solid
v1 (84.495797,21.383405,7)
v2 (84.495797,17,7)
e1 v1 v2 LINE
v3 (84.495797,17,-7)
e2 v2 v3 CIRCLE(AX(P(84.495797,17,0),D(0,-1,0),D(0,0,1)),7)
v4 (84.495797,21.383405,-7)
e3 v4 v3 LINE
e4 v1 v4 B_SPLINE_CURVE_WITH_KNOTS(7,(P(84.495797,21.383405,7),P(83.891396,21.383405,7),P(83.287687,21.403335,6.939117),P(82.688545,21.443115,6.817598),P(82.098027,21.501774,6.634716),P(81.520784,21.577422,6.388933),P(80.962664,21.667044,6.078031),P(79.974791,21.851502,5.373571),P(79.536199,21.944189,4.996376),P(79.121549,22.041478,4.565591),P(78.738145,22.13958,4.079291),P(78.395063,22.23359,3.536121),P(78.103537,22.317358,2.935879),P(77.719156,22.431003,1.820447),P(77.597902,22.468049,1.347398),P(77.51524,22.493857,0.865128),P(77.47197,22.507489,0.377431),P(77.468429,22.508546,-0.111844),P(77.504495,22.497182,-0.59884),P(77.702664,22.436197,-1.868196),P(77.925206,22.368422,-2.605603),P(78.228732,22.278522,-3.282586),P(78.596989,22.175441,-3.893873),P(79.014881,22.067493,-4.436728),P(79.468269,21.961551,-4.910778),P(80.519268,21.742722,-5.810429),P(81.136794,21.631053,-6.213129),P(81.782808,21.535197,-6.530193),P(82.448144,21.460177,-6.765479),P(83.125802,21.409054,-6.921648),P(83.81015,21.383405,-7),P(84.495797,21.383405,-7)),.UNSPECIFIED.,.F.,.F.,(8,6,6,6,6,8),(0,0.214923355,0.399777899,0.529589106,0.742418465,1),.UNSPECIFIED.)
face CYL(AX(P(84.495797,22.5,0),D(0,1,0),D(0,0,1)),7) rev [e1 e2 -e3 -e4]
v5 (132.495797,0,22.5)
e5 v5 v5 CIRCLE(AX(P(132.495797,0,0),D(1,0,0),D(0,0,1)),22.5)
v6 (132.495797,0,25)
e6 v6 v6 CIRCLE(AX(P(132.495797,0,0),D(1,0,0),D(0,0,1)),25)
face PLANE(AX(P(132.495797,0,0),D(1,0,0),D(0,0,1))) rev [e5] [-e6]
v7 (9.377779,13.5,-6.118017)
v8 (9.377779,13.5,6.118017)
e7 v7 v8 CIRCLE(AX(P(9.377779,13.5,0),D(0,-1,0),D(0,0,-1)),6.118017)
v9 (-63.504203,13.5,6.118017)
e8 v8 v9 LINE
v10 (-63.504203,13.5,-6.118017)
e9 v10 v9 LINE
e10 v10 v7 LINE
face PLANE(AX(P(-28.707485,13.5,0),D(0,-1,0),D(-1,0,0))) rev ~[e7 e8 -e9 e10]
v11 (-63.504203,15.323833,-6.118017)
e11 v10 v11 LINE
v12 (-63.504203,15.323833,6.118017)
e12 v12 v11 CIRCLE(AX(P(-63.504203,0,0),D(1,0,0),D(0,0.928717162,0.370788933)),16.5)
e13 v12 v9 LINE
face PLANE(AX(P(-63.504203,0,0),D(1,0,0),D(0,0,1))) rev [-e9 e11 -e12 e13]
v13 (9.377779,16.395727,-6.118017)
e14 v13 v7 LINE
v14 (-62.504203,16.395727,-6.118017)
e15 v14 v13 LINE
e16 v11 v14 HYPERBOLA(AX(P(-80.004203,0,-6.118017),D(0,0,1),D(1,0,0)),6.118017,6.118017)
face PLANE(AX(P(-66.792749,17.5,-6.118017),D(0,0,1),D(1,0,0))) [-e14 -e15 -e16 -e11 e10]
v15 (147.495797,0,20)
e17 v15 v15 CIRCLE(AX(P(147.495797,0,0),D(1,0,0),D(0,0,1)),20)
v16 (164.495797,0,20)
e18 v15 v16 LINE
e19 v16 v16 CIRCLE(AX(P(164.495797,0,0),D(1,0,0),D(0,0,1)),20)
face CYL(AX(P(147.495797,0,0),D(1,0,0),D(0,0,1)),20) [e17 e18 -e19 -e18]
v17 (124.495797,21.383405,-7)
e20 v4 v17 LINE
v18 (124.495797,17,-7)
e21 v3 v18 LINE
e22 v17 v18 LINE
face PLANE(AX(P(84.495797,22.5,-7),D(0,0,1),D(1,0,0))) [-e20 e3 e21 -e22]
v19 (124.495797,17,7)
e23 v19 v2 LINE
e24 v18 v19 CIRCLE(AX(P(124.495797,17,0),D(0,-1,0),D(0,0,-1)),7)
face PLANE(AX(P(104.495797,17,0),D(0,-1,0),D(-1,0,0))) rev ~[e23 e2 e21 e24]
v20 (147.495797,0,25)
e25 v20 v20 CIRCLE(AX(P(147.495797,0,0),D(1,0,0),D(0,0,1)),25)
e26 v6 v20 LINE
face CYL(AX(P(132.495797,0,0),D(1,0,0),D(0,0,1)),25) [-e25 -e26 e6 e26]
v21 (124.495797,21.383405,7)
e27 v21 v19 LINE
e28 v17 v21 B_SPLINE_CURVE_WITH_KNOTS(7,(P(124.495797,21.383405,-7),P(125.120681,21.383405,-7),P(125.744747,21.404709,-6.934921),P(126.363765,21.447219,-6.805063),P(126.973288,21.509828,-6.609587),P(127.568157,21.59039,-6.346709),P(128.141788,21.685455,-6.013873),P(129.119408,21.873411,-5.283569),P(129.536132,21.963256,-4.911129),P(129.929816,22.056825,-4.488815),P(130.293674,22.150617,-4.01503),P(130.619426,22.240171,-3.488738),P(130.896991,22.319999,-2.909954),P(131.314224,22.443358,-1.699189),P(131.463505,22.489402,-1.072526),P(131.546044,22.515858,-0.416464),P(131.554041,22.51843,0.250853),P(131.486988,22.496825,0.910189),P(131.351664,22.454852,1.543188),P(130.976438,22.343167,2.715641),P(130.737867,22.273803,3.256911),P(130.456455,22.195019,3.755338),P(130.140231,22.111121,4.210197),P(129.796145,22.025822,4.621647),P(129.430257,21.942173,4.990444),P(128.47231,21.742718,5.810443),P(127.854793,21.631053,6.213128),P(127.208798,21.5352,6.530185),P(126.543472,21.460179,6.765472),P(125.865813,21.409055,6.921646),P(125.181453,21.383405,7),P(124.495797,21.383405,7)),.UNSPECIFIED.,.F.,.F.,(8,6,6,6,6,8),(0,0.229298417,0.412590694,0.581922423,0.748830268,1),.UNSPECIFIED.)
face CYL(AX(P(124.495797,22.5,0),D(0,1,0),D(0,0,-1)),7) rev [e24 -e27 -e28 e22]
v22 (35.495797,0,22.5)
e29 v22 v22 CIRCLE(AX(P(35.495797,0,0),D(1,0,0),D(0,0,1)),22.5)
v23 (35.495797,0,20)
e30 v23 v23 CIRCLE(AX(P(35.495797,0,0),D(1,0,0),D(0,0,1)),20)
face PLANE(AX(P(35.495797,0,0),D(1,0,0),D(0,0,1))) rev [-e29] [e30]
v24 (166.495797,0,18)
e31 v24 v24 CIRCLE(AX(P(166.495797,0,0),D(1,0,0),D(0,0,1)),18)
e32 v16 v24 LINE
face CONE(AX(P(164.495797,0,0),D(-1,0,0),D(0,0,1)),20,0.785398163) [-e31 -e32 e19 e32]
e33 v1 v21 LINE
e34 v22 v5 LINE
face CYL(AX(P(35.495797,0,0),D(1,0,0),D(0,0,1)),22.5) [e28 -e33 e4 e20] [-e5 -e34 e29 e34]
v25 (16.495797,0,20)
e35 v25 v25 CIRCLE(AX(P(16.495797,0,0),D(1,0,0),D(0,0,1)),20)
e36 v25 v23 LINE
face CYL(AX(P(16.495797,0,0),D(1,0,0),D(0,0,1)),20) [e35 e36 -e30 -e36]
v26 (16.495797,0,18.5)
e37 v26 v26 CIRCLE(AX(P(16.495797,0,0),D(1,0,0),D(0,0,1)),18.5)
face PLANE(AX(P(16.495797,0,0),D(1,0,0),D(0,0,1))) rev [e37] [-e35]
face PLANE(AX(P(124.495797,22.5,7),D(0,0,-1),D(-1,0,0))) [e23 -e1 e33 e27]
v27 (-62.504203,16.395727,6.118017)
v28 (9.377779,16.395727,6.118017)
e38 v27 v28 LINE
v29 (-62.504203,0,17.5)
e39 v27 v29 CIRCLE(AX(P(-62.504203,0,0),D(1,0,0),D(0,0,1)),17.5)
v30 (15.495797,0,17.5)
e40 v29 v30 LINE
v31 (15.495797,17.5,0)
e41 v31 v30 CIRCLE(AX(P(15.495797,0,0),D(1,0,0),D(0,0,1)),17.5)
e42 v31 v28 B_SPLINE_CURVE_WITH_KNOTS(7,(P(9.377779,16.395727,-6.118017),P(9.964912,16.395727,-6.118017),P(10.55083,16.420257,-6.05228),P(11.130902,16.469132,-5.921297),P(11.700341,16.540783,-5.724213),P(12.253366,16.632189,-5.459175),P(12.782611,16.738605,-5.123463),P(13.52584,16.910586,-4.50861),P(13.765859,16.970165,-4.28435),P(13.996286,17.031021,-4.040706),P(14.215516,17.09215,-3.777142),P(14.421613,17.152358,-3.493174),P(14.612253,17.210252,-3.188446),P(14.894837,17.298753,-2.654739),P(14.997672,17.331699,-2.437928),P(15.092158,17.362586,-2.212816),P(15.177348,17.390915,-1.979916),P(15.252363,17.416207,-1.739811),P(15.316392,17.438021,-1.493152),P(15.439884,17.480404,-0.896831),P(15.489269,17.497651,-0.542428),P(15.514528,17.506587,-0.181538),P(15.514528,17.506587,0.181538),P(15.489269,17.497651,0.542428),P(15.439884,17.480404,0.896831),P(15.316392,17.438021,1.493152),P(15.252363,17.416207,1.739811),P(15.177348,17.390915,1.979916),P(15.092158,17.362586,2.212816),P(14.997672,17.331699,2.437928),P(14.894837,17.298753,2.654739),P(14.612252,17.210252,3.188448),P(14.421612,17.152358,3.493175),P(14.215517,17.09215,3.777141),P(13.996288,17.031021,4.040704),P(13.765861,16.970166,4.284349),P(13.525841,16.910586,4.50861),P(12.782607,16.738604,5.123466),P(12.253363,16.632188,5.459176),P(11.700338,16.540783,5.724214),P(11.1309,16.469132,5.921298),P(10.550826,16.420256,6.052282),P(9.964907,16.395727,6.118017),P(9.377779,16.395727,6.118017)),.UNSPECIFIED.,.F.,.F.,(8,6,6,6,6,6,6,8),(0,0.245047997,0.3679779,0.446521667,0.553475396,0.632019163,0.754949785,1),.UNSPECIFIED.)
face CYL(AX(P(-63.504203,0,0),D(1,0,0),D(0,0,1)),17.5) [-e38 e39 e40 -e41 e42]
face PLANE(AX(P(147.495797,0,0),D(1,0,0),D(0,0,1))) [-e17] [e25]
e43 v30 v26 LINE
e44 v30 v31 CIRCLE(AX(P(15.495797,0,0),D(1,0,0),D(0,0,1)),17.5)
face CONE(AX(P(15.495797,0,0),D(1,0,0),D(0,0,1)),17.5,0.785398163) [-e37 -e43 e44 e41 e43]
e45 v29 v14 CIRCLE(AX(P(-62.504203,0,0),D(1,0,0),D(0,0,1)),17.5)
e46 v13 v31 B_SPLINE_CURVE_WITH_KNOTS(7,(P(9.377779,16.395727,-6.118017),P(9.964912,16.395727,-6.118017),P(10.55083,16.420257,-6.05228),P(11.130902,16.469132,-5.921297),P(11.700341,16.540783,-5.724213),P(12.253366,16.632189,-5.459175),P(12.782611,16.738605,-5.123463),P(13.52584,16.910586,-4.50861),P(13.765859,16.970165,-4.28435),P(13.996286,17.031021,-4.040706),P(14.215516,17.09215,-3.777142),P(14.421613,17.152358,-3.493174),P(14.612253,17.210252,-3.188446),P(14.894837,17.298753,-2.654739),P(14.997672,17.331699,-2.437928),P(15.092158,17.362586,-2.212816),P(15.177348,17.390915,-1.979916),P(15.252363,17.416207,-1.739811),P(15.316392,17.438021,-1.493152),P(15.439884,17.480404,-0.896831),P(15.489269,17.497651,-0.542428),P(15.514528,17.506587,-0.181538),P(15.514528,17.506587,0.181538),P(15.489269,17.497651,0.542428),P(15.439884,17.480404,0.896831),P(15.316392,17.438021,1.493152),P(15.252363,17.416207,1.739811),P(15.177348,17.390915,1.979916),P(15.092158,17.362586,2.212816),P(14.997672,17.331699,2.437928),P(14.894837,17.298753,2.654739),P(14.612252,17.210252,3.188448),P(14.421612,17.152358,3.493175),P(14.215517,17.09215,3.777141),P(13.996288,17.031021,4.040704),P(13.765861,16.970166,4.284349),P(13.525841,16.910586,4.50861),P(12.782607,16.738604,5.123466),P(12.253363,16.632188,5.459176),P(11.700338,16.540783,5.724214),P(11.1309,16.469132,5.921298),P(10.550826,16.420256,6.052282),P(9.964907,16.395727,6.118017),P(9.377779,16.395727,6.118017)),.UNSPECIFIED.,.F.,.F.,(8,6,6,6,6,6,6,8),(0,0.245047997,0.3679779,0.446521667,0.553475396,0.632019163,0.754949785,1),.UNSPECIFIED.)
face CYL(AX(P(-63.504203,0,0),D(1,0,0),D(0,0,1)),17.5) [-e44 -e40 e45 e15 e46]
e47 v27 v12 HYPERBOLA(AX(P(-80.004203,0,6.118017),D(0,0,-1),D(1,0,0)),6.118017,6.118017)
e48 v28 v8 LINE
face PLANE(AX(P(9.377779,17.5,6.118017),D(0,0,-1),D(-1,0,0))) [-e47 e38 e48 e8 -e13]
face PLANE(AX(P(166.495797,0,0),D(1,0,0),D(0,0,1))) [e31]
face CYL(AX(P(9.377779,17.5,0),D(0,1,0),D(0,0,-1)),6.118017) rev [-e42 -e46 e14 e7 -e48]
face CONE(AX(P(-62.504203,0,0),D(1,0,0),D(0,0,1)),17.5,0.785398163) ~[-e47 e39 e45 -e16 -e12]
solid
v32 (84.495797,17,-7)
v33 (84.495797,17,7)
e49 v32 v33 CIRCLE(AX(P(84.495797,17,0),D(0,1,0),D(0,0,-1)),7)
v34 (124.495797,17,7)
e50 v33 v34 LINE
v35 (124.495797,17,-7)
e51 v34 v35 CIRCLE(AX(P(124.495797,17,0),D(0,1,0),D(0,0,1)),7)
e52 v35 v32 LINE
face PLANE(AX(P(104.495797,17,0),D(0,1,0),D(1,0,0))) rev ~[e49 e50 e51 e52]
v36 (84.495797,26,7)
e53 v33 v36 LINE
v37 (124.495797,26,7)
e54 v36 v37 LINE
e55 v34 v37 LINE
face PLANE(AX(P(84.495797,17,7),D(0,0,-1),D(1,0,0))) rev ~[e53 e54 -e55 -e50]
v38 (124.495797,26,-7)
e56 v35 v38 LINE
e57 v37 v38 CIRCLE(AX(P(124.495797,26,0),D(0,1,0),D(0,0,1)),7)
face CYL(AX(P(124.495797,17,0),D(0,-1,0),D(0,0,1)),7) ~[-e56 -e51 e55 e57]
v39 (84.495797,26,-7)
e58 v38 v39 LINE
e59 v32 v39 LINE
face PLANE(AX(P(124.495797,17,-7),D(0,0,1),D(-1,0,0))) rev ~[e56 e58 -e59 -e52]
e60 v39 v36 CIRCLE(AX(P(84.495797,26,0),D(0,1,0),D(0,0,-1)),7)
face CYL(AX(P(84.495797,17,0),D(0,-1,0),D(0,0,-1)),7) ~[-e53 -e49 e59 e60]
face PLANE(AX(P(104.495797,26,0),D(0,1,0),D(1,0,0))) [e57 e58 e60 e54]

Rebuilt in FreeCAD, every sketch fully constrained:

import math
import FreeCAD as App
import Part
import Sketcher

V = App.Vector
Q = App.Units.Quantity


def edges_at(feature, points):
    """Names of the edges that pass closest to the given points."""
    edges = feature.Shape.Edges
    near = lambda p: min(range(len(edges)), key=lambda i: edges[i].distToShape(Part.Vertex(*p))[0])
    return sorted({f"Edge{near(p) + 1}" for p in points})

doc = App.newDocument("Part")
body = doc.addObject("PartDesign::Body", "Body")

# Sketch on XY plane
sketch1 = doc.addObject("Sketcher::SketchObject", "Sketch")
body.addObject(sketch1)
sketch1.AttachmentSupport = (doc.XY_Plane, [""])
sketch1.MapMode = "FlatFace"
sketch1.addGeometry(Part.LineSegment(V(-63.5, 17.5, 0), V(-63.5, 0, 0)), False)
sketch1.addGeometry(Part.LineSegment(V(-63.5, 0, 0), V(166.5, 0, 0)), False)
sketch1.addGeometry(Part.LineSegment(V(166.5, 0, 0), V(166.5, 20, 0)), False)
sketch1.addGeometry(Part.LineSegment(V(166.5, 20, 0), V(147.5, 20, 0)), False)
sketch1.addGeometry(Part.LineSegment(V(147.5, 20, 0), V(147.5, 25, 0)), False)
sketch1.addGeometry(Part.LineSegment(V(147.5, 25, 0), V(132.5, 25, 0)), False)
sketch1.addGeometry(Part.LineSegment(V(132.5, 25, 0), V(132.5, 22.5, 0)), False)
sketch1.addGeometry(Part.LineSegment(V(132.5, 22.5, 0), V(35.5, 22.5, 0)), False)
sketch1.addGeometry(Part.LineSegment(V(35.5, 22.5, 0), V(35.5, 20, 0)), False)
sketch1.addGeometry(Part.LineSegment(V(35.5, 20, 0), V(16.5, 20, 0)), False)
sketch1.addGeometry(Part.LineSegment(V(16.5, 20, 0), V(16.5, 17.5, 0)), False)
sketch1.addGeometry(Part.LineSegment(V(16.5, 17.5, 0), V(-63.5, 17.5, 0)), False)
sketch1.addConstraint(Sketcher.Constraint("Coincident", 0, 2, 1, 1))
sketch1.addConstraint(Sketcher.Constraint("Coincident", 1, 2, 2, 1))
sketch1.addConstraint(Sketcher.Constraint("Coincident", 2, 2, 3, 1))
sketch1.addConstraint(Sketcher.Constraint("Coincident", 3, 2, 4, 1))
sketch1.addConstraint(Sketcher.Constraint("Coincident", 4, 2, 5, 1))
sketch1.addConstraint(Sketcher.Constraint("Coincident", 5, 2, 6, 1))
sketch1.addConstraint(Sketcher.Constraint("Coincident", 6, 2, 7, 1))
sketch1.addConstraint(Sketcher.Constraint("Coincident", 7, 2, 8, 1))
sketch1.addConstraint(Sketcher.Constraint("Coincident", 8, 2, 9, 1))
sketch1.addConstraint(Sketcher.Constraint("Coincident", 9, 2, 10, 1))
sketch1.addConstraint(Sketcher.Constraint("Coincident", 10, 2, 11, 1))
sketch1.addConstraint(Sketcher.Constraint("Coincident", 11, 2, 0, 1))
sketch1.addConstraint(Sketcher.Constraint("Vertical", 0))
sketch1.addConstraint(Sketcher.Constraint("Horizontal", 1))
sketch1.addConstraint(Sketcher.Constraint("Vertical", 2))
sketch1.addConstraint(Sketcher.Constraint("Horizontal", 3))
sketch1.addConstraint(Sketcher.Constraint("Vertical", 4))
sketch1.addConstraint(Sketcher.Constraint("Horizontal", 5))
sketch1.addConstraint(Sketcher.Constraint("Vertical", 6))
sketch1.addConstraint(Sketcher.Constraint("Horizontal", 7))
sketch1.addConstraint(Sketcher.Constraint("Vertical", 8))
sketch1.addConstraint(Sketcher.Constraint("Horizontal", 9))
sketch1.addConstraint(Sketcher.Constraint("Vertical", 10))
sketch1.addConstraint(Sketcher.Constraint("Horizontal", 11))
sketch1.addConstraint(Sketcher.Constraint("PointOnObject", 0, 2, -1))
sketch1.addConstraint(Sketcher.Constraint("Horizontal", 3, 2, 8, 2))
sketch1.addConstraint(Sketcher.Constraint("Equal", 3, 9))
sketch1.addConstraint(Sketcher.Constraint("Equal", 6, 8))
sketch1.addConstraint(Sketcher.Constraint("Equal", 8, 10))
sketch1.addConstraint(Sketcher.Constraint("DistanceX", 1, 1, 1, 2, Q("230 mm")))
sketch1.addConstraint(Sketcher.Constraint("DistanceX", 3, 2, 3, 1, Q("19 mm")))
sketch1.addConstraint(Sketcher.Constraint("DistanceX", 5, 2, 5, 1, Q("15 mm")))
sketch1.addConstraint(Sketcher.Constraint("DistanceX", 7, 2, 7, 1, Q("97 mm")))
sketch1.addConstraint(Sketcher.Constraint("DistanceY", 2, 1, 2, 2, Q("20 mm")))
sketch1.addConstraint(Sketcher.Constraint("DistanceY", 4, 1, 4, 2, Q("5 mm")))
sketch1.addConstraint(Sketcher.Constraint("DistanceX", 0, 2, -1, 1, Q("63.504203 mm")))
revolution = doc.addObject("PartDesign::Revolution", "Revolution")
body.addObject(revolution)
revolution.Profile = sketch1
revolution.ReferenceAxis = (sketch1, ["H_Axis"])
revolution.Angle = 360
doc.recompute()

chamfer = doc.addObject("PartDesign::Chamfer", "Chamfer")
body.addObject(chamfer)
chamfer.Base = (revolution, edges_at(revolution, [(16.496, 0, -17.5)]))
chamfer.Size = 1
doc.recompute()

chamfer2 = doc.addObject("PartDesign::Chamfer", "Chamfer001")
body.addObject(chamfer2)
chamfer2.Base = (chamfer, edges_at(chamfer, [(-63.504, 0, -17.5)]))
chamfer2.Size = 1
doc.recompute()

chamfer3 = doc.addObject("PartDesign::Chamfer", "Chamfer002")
body.addObject(chamfer3)
chamfer3.Base = (chamfer2, edges_at(chamfer2, [(166.496, 0, -20)]))
chamfer3.Size = 2

# Sketch on XZ plane
sketch2 = doc.addObject("Sketcher::SketchObject", "Sketch001")
body.addObject(sketch2)
sketch2.AttachmentSupport = (doc.XZ_Plane, [""])
sketch2.MapMode = "FlatFace"
sketch2.AttachmentOffset = App.Placement(V(0, 0, -17.5), App.Rotation())
sketch2.addGeometry(Part.LineSegment(V(9, -6, 0), V(-67, -6, 0)), False)
sketch2.addGeometry(Part.ArcOfCircle(Part.Circle(V(-67, 0, 0), V(0, 0, 1), 6), math.radians(90), math.radians(270)), False)
sketch2.addGeometry(Part.LineSegment(V(-67, 6, 0), V(9, 6, 0)), False)
sketch2.addGeometry(Part.ArcOfCircle(Part.Circle(V(9, 0, 0), V(0, 0, 1), 6), math.radians(-90), math.radians(90)), False)
sketch2.addConstraint(Sketcher.Constraint("Tangent", 0, 2, 1, 2))
sketch2.addConstraint(Sketcher.Constraint("Tangent", 1, 1, 2, 1))
sketch2.addConstraint(Sketcher.Constraint("Tangent", 2, 2, 3, 2))
sketch2.addConstraint(Sketcher.Constraint("Tangent", 3, 1, 0, 1))
sketch2.addConstraint(Sketcher.Constraint("Horizontal", 0))
sketch2.addConstraint(Sketcher.Constraint("Horizontal", 2))
sketch2.addConstraint(Sketcher.Constraint("PointOnObject", 1, 3, -1))
sketch2.addConstraint(Sketcher.Constraint("Radius", 1, Q("6.118017 mm")))
sketch2.addConstraint(Sketcher.Constraint("DistanceX", 0, 2, 0, 1, Q("76.170528 mm")))
sketch2.addConstraint(Sketcher.Constraint("DistanceX", 1, 3, -1, 1, Q("66.792749 mm")))
pocket1 = doc.addObject("PartDesign::Pocket", "Pocket")
body.addObject(pocket1)
pocket1.Profile = sketch2
pocket1.Length = 4
pocket1.Reversed = True

# Sketch on XZ plane
sketch3 = doc.addObject("Sketcher::SketchObject", "Sketch002")
body.addObject(sketch3)
sketch3.AttachmentSupport = (doc.XZ_Plane, [""])
sketch3.MapMode = "FlatFace"
sketch3.AttachmentOffset = App.Placement(V(0, 0, -22.5), App.Rotation())
sketch3.addGeometry(Part.LineSegment(V(124, -7, 0), V(84, -7, 0)), False)
sketch3.addGeometry(Part.ArcOfCircle(Part.Circle(V(84, 0, 0), V(0, 0, 1), 7), math.radians(90), math.radians(270)), False)
sketch3.addGeometry(Part.LineSegment(V(84, 7, 0), V(124, 7, 0)), False)
sketch3.addGeometry(Part.ArcOfCircle(Part.Circle(V(124, 0, 0), V(0, 0, 1), 7), math.radians(-90), math.radians(90)), False)
sketch3.addConstraint(Sketcher.Constraint("Tangent", 0, 2, 1, 2))
sketch3.addConstraint(Sketcher.Constraint("Tangent", 1, 1, 2, 1))
sketch3.addConstraint(Sketcher.Constraint("Tangent", 2, 2, 3, 2))
sketch3.addConstraint(Sketcher.Constraint("Tangent", 3, 1, 0, 1))
sketch3.addConstraint(Sketcher.Constraint("Horizontal", 0))
sketch3.addConstraint(Sketcher.Constraint("Horizontal", 2))
sketch3.addConstraint(Sketcher.Constraint("PointOnObject", 1, 3, -1))
sketch3.addConstraint(Sketcher.Constraint("Radius", 1, Q("7 mm")))
sketch3.addConstraint(Sketcher.Constraint("DistanceX", 0, 2, 0, 1, Q("40 mm")))
sketch3.addConstraint(Sketcher.Constraint("DistanceX", -1, 1, 1, 3, Q("84.495797 mm")))
pocket2 = doc.addObject("PartDesign::Pocket", "Pocket001")
body.addObject(pocket2)
pocket2.Profile = sketch3
pocket2.Length = 5.5
pocket2.Reversed = True
body2 = doc.addObject("PartDesign::Body", "Body001")

# Sketch on XZ plane
sketch4 = doc.addObject("Sketcher::SketchObject", "Sketch003")
body2.addObject(sketch4)
sketch4.AttachmentSupport = (doc.getObject("XZ_Plane001"), [""])
sketch4.MapMode = "FlatFace"
sketch4.AttachmentOffset = App.Placement(V(0, 0, -17), App.Rotation())
sketch4.addGeometry(Part.LineSegment(V(84, 7, 0), V(124, 7, 0)), False)
sketch4.addGeometry(Part.ArcOfCircle(Part.Circle(V(124, 0, 0), V(0, 0, 1), 7), math.radians(-90), math.radians(90)), False)
sketch4.addGeometry(Part.LineSegment(V(124, -7, 0), V(84, -7, 0)), False)
sketch4.addGeometry(Part.ArcOfCircle(Part.Circle(V(84, 0, 0), V(0, 0, 1), 7), math.radians(90), math.radians(270)), False)
sketch4.addConstraint(Sketcher.Constraint("Tangent", 0, 2, 1, 2))
sketch4.addConstraint(Sketcher.Constraint("Tangent", 1, 1, 2, 1))
sketch4.addConstraint(Sketcher.Constraint("Tangent", 2, 2, 3, 2))
sketch4.addConstraint(Sketcher.Constraint("Tangent", 3, 1, 0, 1))
sketch4.addConstraint(Sketcher.Constraint("Horizontal", 0))
sketch4.addConstraint(Sketcher.Constraint("Horizontal", 2))
sketch4.addConstraint(Sketcher.Constraint("PointOnObject", 1, 3, -1))
sketch4.addConstraint(Sketcher.Constraint("Radius", 1, Q("7 mm")))
sketch4.addConstraint(Sketcher.Constraint("DistanceX", 0, 1, 0, 2, Q("40 mm")))
sketch4.addConstraint(Sketcher.Constraint("DistanceX", -1, 1, 1, 3, Q("124.495797 mm")))
pad1 = doc.addObject("PartDesign::Pad", "Pad")
body2.addObject(pad1)
pad1.Profile = sketch4
pad1.Length = 9
pad1.Reversed = True

doc.recompute()
